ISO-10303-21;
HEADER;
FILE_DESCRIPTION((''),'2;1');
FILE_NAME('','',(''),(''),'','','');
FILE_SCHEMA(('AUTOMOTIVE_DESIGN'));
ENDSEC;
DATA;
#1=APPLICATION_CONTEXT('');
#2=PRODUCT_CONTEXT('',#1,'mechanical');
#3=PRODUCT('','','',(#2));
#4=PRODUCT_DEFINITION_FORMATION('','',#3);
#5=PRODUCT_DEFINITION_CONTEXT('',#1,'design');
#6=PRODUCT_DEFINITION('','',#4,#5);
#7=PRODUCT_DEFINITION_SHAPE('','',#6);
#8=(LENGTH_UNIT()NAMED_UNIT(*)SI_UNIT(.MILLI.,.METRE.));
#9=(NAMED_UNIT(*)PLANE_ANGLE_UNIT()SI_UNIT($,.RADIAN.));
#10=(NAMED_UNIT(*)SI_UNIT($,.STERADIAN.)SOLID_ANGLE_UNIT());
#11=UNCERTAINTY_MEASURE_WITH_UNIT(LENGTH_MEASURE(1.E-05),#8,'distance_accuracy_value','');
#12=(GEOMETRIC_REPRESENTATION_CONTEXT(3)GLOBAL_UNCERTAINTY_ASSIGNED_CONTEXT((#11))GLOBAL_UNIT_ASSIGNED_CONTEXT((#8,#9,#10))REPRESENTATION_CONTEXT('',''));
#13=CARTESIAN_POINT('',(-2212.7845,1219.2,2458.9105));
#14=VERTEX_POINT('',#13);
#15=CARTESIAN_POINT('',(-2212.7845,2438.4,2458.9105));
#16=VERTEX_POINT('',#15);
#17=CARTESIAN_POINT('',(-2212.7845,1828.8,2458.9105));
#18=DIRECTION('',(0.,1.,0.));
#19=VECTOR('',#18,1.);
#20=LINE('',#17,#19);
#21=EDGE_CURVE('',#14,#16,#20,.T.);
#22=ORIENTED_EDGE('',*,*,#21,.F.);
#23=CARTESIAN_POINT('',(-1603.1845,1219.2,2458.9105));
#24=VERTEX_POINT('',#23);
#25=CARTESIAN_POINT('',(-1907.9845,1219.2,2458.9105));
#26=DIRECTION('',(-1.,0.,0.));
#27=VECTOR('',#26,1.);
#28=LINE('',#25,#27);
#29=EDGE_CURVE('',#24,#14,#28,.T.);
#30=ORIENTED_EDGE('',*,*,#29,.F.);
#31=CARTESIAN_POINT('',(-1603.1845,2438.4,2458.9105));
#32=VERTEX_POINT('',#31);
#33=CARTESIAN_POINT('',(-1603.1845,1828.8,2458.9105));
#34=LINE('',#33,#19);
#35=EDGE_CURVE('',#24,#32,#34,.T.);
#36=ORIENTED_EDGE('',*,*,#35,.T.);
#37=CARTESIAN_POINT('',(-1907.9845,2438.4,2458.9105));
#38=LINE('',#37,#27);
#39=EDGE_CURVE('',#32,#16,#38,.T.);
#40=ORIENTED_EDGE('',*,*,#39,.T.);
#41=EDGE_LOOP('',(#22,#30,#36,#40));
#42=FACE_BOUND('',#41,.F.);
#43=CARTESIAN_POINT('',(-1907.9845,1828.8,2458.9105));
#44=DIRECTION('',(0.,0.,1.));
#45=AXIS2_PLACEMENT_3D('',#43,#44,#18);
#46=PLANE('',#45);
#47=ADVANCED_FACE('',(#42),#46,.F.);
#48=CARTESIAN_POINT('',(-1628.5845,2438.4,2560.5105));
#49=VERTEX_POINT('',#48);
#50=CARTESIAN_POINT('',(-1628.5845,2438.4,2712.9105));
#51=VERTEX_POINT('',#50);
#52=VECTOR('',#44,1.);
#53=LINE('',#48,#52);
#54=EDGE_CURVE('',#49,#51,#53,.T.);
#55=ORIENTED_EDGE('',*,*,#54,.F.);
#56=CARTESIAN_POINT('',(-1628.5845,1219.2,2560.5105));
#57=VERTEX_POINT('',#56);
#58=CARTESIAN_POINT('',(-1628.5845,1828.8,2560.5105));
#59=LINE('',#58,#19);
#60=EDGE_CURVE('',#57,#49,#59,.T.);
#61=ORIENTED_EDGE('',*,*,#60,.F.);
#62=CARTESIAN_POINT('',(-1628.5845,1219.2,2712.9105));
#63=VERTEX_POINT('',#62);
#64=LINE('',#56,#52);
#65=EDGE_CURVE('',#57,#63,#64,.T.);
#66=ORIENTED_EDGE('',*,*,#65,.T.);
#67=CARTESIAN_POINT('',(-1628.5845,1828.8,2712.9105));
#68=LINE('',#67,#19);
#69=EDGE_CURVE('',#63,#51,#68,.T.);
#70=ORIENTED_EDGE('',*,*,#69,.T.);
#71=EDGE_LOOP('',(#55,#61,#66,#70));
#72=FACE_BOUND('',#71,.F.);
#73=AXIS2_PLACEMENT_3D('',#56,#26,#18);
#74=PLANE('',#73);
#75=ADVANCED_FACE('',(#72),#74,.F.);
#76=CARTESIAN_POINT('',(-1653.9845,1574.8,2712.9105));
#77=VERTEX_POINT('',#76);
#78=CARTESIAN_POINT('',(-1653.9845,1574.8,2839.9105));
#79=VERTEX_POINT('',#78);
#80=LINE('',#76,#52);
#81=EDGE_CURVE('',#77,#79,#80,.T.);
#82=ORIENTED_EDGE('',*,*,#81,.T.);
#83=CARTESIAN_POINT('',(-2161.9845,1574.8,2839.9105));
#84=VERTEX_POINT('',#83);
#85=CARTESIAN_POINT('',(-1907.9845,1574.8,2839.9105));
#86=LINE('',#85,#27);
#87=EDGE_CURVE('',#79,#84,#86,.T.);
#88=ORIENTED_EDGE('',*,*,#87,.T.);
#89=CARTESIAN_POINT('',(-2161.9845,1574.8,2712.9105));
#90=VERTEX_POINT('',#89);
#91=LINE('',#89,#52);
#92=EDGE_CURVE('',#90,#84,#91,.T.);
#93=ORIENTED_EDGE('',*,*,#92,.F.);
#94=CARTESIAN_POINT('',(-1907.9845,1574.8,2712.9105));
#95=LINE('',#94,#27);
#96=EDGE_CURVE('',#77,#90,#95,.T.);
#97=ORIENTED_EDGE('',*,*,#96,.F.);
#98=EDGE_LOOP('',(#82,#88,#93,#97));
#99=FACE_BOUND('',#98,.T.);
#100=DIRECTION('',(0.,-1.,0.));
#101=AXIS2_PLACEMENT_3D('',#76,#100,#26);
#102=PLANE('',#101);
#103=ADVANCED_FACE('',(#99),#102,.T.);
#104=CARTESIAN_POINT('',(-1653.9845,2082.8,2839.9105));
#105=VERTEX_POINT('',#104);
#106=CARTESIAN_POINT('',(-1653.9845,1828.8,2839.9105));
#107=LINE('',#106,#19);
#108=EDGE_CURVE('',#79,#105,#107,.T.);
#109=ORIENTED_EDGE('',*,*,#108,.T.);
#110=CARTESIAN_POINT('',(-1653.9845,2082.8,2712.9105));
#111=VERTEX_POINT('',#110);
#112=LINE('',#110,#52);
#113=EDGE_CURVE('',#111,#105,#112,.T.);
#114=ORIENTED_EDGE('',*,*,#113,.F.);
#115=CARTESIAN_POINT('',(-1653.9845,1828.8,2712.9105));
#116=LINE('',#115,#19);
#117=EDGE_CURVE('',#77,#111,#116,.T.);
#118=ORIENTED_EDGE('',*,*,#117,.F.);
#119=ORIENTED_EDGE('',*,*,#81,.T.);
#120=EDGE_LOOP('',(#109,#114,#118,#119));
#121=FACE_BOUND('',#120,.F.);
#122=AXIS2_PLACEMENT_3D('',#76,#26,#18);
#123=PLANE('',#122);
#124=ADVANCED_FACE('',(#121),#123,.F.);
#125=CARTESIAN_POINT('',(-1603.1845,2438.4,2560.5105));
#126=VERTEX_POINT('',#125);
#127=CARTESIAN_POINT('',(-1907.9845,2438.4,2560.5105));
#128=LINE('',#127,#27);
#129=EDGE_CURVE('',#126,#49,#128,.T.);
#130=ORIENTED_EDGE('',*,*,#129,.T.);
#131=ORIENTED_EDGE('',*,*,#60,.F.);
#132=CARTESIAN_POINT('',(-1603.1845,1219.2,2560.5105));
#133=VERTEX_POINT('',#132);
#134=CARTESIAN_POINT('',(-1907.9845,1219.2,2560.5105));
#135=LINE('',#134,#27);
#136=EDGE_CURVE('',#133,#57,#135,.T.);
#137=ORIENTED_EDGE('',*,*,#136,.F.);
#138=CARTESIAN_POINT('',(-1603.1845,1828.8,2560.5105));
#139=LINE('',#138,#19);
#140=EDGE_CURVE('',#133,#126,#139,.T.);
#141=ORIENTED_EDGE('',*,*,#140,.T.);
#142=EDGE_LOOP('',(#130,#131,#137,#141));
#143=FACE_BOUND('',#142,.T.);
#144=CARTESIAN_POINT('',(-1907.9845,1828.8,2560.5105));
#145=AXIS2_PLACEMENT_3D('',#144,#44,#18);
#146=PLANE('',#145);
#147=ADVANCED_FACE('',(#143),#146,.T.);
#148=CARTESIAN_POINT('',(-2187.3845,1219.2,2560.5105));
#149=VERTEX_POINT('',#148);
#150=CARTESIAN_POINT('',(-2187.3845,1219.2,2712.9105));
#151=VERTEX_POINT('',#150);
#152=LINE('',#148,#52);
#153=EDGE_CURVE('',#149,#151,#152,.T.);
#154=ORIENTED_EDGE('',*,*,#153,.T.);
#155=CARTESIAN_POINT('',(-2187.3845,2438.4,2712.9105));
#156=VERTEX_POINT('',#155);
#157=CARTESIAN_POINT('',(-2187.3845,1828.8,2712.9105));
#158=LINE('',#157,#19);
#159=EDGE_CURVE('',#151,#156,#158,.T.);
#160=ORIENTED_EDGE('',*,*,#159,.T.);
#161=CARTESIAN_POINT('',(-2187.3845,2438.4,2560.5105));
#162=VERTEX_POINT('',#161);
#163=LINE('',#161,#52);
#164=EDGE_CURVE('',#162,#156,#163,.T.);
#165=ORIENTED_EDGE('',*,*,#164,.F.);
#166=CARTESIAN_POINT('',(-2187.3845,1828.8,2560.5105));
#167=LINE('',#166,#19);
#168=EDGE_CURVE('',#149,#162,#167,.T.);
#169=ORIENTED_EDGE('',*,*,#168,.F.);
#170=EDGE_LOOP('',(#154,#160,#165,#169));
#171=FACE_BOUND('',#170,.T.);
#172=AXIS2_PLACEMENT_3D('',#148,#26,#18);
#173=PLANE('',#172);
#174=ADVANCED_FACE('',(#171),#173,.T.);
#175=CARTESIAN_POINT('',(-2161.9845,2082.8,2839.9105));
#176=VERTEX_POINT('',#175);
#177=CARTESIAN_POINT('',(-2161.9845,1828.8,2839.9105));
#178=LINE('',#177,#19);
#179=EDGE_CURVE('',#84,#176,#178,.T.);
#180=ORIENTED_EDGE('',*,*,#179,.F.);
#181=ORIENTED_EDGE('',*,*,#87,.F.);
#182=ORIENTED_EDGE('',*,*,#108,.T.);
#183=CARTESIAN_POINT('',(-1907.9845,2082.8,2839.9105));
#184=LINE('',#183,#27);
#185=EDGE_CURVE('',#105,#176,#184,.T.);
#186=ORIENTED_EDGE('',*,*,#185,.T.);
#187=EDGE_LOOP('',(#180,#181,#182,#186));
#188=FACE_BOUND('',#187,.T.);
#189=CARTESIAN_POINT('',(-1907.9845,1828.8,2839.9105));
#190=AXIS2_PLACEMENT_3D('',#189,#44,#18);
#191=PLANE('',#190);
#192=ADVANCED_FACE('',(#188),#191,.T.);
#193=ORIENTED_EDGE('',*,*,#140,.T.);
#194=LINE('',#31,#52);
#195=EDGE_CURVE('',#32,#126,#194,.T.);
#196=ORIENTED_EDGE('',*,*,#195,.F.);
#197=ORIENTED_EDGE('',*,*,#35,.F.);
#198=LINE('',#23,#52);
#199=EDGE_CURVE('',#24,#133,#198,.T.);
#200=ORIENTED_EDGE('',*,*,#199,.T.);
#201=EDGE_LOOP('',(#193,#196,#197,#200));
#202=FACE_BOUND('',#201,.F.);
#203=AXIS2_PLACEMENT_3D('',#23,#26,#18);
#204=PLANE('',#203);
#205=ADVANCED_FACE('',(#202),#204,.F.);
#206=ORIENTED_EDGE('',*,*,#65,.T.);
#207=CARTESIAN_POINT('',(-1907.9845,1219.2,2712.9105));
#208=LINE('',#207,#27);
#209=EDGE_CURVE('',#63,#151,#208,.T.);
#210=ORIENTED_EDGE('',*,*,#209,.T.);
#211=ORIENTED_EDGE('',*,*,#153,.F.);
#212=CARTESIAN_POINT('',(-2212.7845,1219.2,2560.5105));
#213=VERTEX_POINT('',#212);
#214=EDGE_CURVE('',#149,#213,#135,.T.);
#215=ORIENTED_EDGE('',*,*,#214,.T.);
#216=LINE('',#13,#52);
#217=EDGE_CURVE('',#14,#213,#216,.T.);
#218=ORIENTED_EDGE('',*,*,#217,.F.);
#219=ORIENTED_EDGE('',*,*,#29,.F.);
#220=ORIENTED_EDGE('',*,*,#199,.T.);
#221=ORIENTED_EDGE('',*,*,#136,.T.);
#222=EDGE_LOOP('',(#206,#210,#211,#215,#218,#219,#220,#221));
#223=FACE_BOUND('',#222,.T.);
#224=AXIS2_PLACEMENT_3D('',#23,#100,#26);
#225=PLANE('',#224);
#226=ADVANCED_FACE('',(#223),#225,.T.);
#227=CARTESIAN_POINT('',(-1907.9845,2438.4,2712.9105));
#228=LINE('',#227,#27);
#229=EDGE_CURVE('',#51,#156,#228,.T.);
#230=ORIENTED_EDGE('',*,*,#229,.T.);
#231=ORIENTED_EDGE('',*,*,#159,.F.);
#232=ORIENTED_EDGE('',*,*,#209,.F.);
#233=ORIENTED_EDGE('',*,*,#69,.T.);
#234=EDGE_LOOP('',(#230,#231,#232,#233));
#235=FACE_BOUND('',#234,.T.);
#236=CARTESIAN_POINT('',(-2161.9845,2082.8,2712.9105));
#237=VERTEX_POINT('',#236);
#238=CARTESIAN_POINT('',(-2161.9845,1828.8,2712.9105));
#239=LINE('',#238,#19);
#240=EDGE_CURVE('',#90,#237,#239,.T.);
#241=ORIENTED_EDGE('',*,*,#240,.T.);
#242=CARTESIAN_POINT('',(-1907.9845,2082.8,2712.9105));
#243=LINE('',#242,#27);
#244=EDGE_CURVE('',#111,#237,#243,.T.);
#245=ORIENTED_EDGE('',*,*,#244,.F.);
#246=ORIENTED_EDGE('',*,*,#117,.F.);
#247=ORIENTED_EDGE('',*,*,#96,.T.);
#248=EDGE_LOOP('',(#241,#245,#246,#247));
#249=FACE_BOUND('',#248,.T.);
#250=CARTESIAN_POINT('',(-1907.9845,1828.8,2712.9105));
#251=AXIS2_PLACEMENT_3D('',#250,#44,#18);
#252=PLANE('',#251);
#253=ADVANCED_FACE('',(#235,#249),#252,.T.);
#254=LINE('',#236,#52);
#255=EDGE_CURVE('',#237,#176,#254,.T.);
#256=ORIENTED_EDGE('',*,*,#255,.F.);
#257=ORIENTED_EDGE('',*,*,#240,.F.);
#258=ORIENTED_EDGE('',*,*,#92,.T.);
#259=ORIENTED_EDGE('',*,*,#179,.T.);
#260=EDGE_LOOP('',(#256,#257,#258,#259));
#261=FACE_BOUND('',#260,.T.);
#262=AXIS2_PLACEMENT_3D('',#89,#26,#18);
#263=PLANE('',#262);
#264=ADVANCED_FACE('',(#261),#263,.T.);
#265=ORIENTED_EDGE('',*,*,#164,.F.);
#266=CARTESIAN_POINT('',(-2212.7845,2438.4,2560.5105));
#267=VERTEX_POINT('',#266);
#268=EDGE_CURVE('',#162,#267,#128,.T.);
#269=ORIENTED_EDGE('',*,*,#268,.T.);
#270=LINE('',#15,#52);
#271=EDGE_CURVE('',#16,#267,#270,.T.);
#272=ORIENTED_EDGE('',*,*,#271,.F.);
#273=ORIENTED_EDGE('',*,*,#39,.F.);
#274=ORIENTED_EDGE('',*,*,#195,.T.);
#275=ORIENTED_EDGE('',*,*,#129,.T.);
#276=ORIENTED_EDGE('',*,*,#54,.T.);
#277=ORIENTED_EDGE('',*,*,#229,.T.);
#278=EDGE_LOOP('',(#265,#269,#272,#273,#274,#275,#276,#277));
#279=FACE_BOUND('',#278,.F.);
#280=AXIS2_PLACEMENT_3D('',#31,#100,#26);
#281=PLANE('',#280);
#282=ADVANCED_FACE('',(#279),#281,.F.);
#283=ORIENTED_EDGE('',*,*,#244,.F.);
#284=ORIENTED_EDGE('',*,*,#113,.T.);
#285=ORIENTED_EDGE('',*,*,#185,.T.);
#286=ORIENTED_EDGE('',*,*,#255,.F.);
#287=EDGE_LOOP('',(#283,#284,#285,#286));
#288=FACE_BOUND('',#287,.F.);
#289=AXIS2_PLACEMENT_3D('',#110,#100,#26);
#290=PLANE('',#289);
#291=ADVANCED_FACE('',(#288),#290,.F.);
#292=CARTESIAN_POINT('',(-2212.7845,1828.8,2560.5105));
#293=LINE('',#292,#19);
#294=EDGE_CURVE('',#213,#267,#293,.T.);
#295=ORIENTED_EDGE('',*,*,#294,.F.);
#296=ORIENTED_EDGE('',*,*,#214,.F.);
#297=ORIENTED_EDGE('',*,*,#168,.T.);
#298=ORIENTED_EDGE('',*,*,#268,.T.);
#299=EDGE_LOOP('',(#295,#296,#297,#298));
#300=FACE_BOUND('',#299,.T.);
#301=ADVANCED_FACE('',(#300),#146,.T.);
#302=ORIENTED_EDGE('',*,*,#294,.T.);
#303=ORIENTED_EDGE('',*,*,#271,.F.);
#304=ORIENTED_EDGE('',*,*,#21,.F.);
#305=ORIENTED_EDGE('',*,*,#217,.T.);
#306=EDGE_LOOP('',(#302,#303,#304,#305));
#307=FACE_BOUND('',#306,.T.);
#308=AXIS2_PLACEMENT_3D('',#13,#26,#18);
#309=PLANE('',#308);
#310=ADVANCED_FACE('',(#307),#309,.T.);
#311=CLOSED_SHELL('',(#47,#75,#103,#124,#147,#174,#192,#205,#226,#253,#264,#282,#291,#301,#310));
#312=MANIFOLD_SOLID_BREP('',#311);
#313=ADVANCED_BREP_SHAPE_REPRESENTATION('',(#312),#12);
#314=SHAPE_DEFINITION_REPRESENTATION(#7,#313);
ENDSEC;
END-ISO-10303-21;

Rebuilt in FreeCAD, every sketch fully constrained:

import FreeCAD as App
import Part
import Sketcher
from FreeCAD import Vector
Q = App.Units.Quantity

doc = App.newDocument("Part")
params = doc.addObject("Spreadsheet::Sheet", "Params")
for row, (alias, value) in enumerate([
    ("sketch1_width", "48 in"),
    ("sketch1_height", "24 in"),
    ("pad1_length", "4 in"),
    ("sketch2_width", "48 in"),
    ("sketch2_height", "22 in"),
    ("pad2_length", "6 in"),
    ("sketch3_width", "20 in"),
    ("pad3_length", "5 in"),
], start=1):
    params.set(f"A{row}", alias)
    params.set(f"B{row}", "=" + value)
    params.setAlias(f"B{row}", alias)

body = doc.addObject("PartDesign::Body", "Body")

# Sketch on XY plane
sketch1 = doc.addObject("Sketcher::SketchObject", "Sketch")
body.addObject(sketch1)
sketch1.AttachmentSupport = (doc.XY_Plane, [""])
sketch1.MapMode = "FlatFace"
sketch1.addGeometry([
    Part.LineSegment(Vector(0, 610, 0), Vector(0, 0, 0)),
    Part.LineSegment(Vector(0, 0, 0), Vector(1219, 0, 0)),
    Part.LineSegment(Vector(1219, 0, 0), Vector(1219, 610, 0)),
    Part.LineSegment(Vector(1219, 610, 0), Vector(0, 610, 0)),
], False)
sketch1.addConstraint([
    Sketcher.Constraint("Coincident", 0, 2, 1, 1),
    Sketcher.Constraint("Coincident", 1, 2, 2, 1),
    Sketcher.Constraint("Coincident", 2, 2, 3, 1),
    Sketcher.Constraint("Coincident", 3, 2, 0, 1),
    Sketcher.Constraint("Vertical", 0),
    Sketcher.Constraint("Horizontal", 1),
    Sketcher.Constraint("Vertical", 2),
    Sketcher.Constraint("Horizontal", 3),
    Sketcher.Constraint("Coincident", 0, 2, -1, 1),
    Sketcher.Constraint("DistanceX", 1, 1, 1, 2, Q("48 in")),
    Sketcher.Constraint("DistanceY", 0, 2, 0, 1, Q("24 in")),
])
sketch1.setExpression("Constraints[9]", "Params.sketch1_width")
sketch1.setExpression("Constraints[10]", "Params.sketch1_height")
pad1 = doc.addObject("PartDesign::Pad", "Pad")
body.addObject(pad1)
pad1.Profile = sketch1
pad1.setExpression("Length", "Params.pad1_length")

# Sketch on XY plane
sketch2 = doc.addObject("Sketcher::SketchObject", "Sketch001")
body.addObject(sketch2)
sketch2.AttachmentSupport = (doc.XY_Plane, [""])
sketch2.MapMode = "FlatFace"
sketch2.AttachmentOffset = App.Placement(Vector(0, 0, 4 * 25.4), App.Rotation())
sketch2.addGeometry([
    Part.LineSegment(Vector(0, 584, 0), Vector(0, 25, 0)),
    Part.LineSegment(Vector(0, 25, 0), Vector(1219, 25, 0)),
    Part.LineSegment(Vector(1219, 25, 0), Vector(1219, 584, 0)),
    Part.LineSegment(Vector(1219, 584, 0), Vector(0, 584, 0)),
], False)
sketch2.addConstraint([
    Sketcher.Constraint("Coincident", 0, 2, 1, 1),
    Sketcher.Constraint("Coincident", 1, 2, 2, 1),
    Sketcher.Constraint("Coincident", 2, 2, 3, 1),
    Sketcher.Constraint("Coincident", 3, 2, 0, 1),
    Sketcher.Constraint("Vertical", 0),
    Sketcher.Constraint("Horizontal", 1),
    Sketcher.Constraint("Vertical", 2),
    Sketcher.Constraint("Horizontal", 3),
    Sketcher.Constraint("PointOnObject", 0, 2, -2),
    Sketcher.Constraint("DistanceX", 1, 1, 1, 2, Q("48 in")),
    Sketcher.Constraint("DistanceY", 0, 2, 0, 1, Q("22 in")),
    Sketcher.Constraint("DistanceY", -1, 1, 0, 2, Q("1 in")),
])
sketch2.setExpression("Constraints[9]", "Params.sketch2_width")
sketch2.setExpression("Constraints[10]", "Params.sketch2_height")
pad2 = doc.addObject("PartDesign::Pad", "Pad001")
body.addObject(pad2)
pad2.Profile = sketch2
pad2.setExpression("Length", "Params.pad2_length")

# Sketch on XY plane
sketch3 = doc.addObject("Sketcher::SketchObject", "Sketch002")
body.addObject(sketch3)
sketch3.AttachmentSupport = (doc.XY_Plane, [""])
sketch3.MapMode = "FlatFace"
sketch3.AttachmentOffset = App.Placement(Vector(0, 0, 10 * 25.4), App.Rotation())
sketch3.addGeometry([
    Part.LineSegment(Vector(356, 559, 0), Vector(356, 51, 0)),
    Part.LineSegment(Vector(356, 51, 0), Vector(864, 51, 0)),
    Part.LineSegment(Vector(864, 51, 0), Vector(864, 559, 0)),
    Part.LineSegment(Vector(864, 559, 0), Vector(356, 559, 0)),
], False)
sketch3.addConstraint([
    Sketcher.Constraint("Coincident", 0, 2, 1, 1),
    Sketcher.Constraint("Coincident", 1, 2, 2, 1),
    Sketcher.Constraint("Coincident", 2, 2, 3, 1),
    Sketcher.Constraint("Coincident", 3, 2, 0, 1),
    Sketcher.Constraint("Vertical", 0),
    Sketcher.Constraint("Horizontal", 1),
    Sketcher.Constraint("Vertical", 2),
    Sketcher.Constraint("Horizontal", 3),
    Sketcher.Constraint("Equal", 3, 0),
    Sketcher.Constraint("DistanceX", 1, 1, 1, 2, Q("20 in")),
    Sketcher.Constraint("DistanceX", -1, 1, 0, 2, Q("14 in")),
    Sketcher.Constraint("DistanceY", -1, 1, 0, 2, Q("2 in")),
])
sketch3.setExpression("Constraints[9]", "Params.sketch3_width")
pad3 = doc.addObject("PartDesign::Pad", "Pad002")
body.addObject(pad3)
pad3.Profile = sketch3
pad3.setExpression("Length", "Params.pad3_length")
body2 = doc.addObject("PartDesign::Body", "Body001")
doc.recompute()

body.Placement = App.Placement(Vector(-1603.1845, 1219.2, 2458.9105), App.Rotation(Vector(0, 0, 1), 90))
boolean = doc.addObject("PartDesign::Boolean", "Boolean")
body2.addObject(boolean)
boolean.Type = "Fuse"
boolean.addObjects([body])

doc.recompute()
